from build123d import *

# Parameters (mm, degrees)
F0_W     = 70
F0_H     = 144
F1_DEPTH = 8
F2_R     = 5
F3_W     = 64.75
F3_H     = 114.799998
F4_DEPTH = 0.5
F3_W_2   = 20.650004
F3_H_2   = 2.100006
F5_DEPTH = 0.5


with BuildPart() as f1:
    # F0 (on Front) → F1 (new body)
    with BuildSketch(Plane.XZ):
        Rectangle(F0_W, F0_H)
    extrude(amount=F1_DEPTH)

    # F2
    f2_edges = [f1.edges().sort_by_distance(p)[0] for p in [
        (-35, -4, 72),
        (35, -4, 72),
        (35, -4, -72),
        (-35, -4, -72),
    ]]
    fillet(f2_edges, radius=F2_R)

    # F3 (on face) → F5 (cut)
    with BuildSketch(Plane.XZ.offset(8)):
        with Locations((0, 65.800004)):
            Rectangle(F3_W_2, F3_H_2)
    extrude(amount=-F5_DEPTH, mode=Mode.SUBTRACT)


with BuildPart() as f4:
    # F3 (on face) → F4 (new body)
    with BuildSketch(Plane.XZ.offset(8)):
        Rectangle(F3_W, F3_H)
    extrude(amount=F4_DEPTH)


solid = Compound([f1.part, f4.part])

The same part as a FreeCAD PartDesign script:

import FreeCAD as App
import Part
import Sketcher

V = App.Vector
Q = App.Units.Quantity


def edges_at(feature, points):
    """Names of the edges that pass closest to the given points."""
    edges = feature.Shape.Edges
    near = lambda p: min(range(len(edges)), key=lambda i: edges[i].distToShape(Part.Vertex(*p))[0])
    return sorted({f"Edge{near(p) + 1}" for p in points})


def add_polygon(sketch, points):
    """Adds a closed chain of lines whose ends are joined by coincident constraints."""
    first, n = sketch.GeometryCount, len(points)
    for a, b in zip(points, points[1:] + points[:1]):
        sketch.addGeometry(Part.LineSegment(App.Vector(*a, 0), App.Vector(*b, 0)), False)
    for i in range(n):
        sketch.addConstraint(Sketcher.Constraint("Coincident", first + i, 2, first + (i + 1) % n, 1))

doc = App.newDocument("Part")
params = doc.addObject("Spreadsheet::Sheet", "Params")
for row, (alias, value) in enumerate([
    ("sketch1_width", "70 mm"),
    ("sketch1_height", "144 mm"),
    ("pad1_length", "8 mm"),
    ("fillet_radius", "5 mm"),
    ("pocket1_length", "0.5 mm"),
    ("sketch3_height", "114.799998 mm"),
    ("sketch3_width", "64.75 mm"),
    ("pad2_length", "0.5 mm"),
], start=1):
    params.set(f"A{row}", alias)
    params.set(f"B{row}", "=" + value)
    params.setAlias(f"B{row}", alias)

body = doc.addObject("PartDesign::Body", "Body")

sketch1 = body.newObject("Sketcher::SketchObject", "Sketch")
sketch1.AttachmentSupport = (doc.getObject("XZ_Plane"), [""])
sketch1.MapMode = "FlatFace"
add_polygon(sketch1, [(-35, 72), (-35, -72), (35, -72), (35, 72)])
sketch1.addConstraint([
    Sketcher.Constraint("Vertical", 0),
    Sketcher.Constraint("Horizontal", 1),
    Sketcher.Constraint("Vertical", 2),
    Sketcher.Constraint("Horizontal", 3),
    Sketcher.Constraint("Symmetric", 0, 2, 2, 2, -1, 1),
    Sketcher.Constraint("DistanceX", 1, 1, 1, 2, Q("70 mm")),
    Sketcher.Constraint("DistanceY", 0, 2, 0, 1, Q("144 mm")),
])
sketch1.setExpression("Constraints[9]", "Params.sketch1_width")
sketch1.setExpression("Constraints[10]", "Params.sketch1_height")
pad1 = body.newObject("PartDesign::Pad", "Pad")
pad1.Profile = sketch1
pad1.setExpression("Length", "Params.pad1_length")
doc.recompute()

fillet = body.newObject("PartDesign::Fillet", "Fillet")
fillet.Base = (pad1, edges_at(pad1, [
    (-35, -4, 72),
    (35, -4, 72),
    (35, -4, -72),
    (-35, -4, -72),
]))
fillet.setExpression("Radius", "Params.fillet_radius")

sketch2 = body.newObject("Sketcher::SketchObject", "Sketch001")
sketch2.AttachmentSupport = (doc.getObject("XZ_Plane"), [""])
sketch2.MapMode = "FlatFace"
sketch2.AttachmentOffset = App.Placement(V(0, 0, 8), App.Rotation())
add_polygon(sketch2, [(-10.3, 66.9), (-10.3, 64.8), (10.3, 64.8), (10.3, 66.9)])
sketch2.addConstraint([
    Sketcher.Constraint("Vertical", 0),
    Sketcher.Constraint("Horizontal", 1),
    Sketcher.Constraint("Vertical", 2),
    Sketcher.Constraint("Horizontal", 3),
    Sketcher.Constraint("DistanceY", -1, 1, 0, 2, Q("64.750001 mm")),
    Sketcher.Constraint("DistanceX", 1, 1, 1, 2, Q("20.650004 mm")),
    Sketcher.Constraint("DistanceY", 0, 2, 0, 1, Q("2.100006 mm")),
    Sketcher.Constraint("DistanceX", 0, 2, -1, 1, Q("10.325002 mm")),
])
pocket1 = body.newObject("PartDesign::Pocket", "Pocket")
pocket1.Profile = sketch2
pocket1.setExpression("Length", "Params.pocket1_length")
body2 = doc.addObject("PartDesign::Body", "Body001")

sketch3 = body2.newObject("Sketcher::SketchObject", "Sketch002")
sketch3.AttachmentSupport = (doc.getObject("XZ_Plane001"), [""])
sketch3.MapMode = "FlatFace"
sketch3.AttachmentOffset = App.Placement(V(0, 0, 8), App.Rotation())
add_polygon(sketch3, [(-32, 57), (-32, -57), (32, -57), (32, 57)])
sketch3.addConstraint([
    Sketcher.Constraint("Vertical", 0),
    Sketcher.Constraint("Horizontal", 1),
    Sketcher.Constraint("Vertical", 2),
    Sketcher.Constraint("Horizontal", 3),
    Sketcher.Constraint("Symmetric", 0, 2, 2, 2, -1, 1),
    Sketcher.Constraint("DistanceY", 0, 2, 0, 1, Q("114.799998 mm")),
    Sketcher.Constraint("DistanceX", 1, 1, 1, 2, Q("64.75 mm")),
])
sketch3.setExpression("Constraints[9]", "Params.sketch3_height")
sketch3.setExpression("Constraints[10]", "Params.sketch3_width")
pad2 = body2.newObject("PartDesign::Pad", "Pad001")
pad2.Profile = sketch3
pad2.setExpression("Length", "Params.pad2_length")

doc.recompute()
